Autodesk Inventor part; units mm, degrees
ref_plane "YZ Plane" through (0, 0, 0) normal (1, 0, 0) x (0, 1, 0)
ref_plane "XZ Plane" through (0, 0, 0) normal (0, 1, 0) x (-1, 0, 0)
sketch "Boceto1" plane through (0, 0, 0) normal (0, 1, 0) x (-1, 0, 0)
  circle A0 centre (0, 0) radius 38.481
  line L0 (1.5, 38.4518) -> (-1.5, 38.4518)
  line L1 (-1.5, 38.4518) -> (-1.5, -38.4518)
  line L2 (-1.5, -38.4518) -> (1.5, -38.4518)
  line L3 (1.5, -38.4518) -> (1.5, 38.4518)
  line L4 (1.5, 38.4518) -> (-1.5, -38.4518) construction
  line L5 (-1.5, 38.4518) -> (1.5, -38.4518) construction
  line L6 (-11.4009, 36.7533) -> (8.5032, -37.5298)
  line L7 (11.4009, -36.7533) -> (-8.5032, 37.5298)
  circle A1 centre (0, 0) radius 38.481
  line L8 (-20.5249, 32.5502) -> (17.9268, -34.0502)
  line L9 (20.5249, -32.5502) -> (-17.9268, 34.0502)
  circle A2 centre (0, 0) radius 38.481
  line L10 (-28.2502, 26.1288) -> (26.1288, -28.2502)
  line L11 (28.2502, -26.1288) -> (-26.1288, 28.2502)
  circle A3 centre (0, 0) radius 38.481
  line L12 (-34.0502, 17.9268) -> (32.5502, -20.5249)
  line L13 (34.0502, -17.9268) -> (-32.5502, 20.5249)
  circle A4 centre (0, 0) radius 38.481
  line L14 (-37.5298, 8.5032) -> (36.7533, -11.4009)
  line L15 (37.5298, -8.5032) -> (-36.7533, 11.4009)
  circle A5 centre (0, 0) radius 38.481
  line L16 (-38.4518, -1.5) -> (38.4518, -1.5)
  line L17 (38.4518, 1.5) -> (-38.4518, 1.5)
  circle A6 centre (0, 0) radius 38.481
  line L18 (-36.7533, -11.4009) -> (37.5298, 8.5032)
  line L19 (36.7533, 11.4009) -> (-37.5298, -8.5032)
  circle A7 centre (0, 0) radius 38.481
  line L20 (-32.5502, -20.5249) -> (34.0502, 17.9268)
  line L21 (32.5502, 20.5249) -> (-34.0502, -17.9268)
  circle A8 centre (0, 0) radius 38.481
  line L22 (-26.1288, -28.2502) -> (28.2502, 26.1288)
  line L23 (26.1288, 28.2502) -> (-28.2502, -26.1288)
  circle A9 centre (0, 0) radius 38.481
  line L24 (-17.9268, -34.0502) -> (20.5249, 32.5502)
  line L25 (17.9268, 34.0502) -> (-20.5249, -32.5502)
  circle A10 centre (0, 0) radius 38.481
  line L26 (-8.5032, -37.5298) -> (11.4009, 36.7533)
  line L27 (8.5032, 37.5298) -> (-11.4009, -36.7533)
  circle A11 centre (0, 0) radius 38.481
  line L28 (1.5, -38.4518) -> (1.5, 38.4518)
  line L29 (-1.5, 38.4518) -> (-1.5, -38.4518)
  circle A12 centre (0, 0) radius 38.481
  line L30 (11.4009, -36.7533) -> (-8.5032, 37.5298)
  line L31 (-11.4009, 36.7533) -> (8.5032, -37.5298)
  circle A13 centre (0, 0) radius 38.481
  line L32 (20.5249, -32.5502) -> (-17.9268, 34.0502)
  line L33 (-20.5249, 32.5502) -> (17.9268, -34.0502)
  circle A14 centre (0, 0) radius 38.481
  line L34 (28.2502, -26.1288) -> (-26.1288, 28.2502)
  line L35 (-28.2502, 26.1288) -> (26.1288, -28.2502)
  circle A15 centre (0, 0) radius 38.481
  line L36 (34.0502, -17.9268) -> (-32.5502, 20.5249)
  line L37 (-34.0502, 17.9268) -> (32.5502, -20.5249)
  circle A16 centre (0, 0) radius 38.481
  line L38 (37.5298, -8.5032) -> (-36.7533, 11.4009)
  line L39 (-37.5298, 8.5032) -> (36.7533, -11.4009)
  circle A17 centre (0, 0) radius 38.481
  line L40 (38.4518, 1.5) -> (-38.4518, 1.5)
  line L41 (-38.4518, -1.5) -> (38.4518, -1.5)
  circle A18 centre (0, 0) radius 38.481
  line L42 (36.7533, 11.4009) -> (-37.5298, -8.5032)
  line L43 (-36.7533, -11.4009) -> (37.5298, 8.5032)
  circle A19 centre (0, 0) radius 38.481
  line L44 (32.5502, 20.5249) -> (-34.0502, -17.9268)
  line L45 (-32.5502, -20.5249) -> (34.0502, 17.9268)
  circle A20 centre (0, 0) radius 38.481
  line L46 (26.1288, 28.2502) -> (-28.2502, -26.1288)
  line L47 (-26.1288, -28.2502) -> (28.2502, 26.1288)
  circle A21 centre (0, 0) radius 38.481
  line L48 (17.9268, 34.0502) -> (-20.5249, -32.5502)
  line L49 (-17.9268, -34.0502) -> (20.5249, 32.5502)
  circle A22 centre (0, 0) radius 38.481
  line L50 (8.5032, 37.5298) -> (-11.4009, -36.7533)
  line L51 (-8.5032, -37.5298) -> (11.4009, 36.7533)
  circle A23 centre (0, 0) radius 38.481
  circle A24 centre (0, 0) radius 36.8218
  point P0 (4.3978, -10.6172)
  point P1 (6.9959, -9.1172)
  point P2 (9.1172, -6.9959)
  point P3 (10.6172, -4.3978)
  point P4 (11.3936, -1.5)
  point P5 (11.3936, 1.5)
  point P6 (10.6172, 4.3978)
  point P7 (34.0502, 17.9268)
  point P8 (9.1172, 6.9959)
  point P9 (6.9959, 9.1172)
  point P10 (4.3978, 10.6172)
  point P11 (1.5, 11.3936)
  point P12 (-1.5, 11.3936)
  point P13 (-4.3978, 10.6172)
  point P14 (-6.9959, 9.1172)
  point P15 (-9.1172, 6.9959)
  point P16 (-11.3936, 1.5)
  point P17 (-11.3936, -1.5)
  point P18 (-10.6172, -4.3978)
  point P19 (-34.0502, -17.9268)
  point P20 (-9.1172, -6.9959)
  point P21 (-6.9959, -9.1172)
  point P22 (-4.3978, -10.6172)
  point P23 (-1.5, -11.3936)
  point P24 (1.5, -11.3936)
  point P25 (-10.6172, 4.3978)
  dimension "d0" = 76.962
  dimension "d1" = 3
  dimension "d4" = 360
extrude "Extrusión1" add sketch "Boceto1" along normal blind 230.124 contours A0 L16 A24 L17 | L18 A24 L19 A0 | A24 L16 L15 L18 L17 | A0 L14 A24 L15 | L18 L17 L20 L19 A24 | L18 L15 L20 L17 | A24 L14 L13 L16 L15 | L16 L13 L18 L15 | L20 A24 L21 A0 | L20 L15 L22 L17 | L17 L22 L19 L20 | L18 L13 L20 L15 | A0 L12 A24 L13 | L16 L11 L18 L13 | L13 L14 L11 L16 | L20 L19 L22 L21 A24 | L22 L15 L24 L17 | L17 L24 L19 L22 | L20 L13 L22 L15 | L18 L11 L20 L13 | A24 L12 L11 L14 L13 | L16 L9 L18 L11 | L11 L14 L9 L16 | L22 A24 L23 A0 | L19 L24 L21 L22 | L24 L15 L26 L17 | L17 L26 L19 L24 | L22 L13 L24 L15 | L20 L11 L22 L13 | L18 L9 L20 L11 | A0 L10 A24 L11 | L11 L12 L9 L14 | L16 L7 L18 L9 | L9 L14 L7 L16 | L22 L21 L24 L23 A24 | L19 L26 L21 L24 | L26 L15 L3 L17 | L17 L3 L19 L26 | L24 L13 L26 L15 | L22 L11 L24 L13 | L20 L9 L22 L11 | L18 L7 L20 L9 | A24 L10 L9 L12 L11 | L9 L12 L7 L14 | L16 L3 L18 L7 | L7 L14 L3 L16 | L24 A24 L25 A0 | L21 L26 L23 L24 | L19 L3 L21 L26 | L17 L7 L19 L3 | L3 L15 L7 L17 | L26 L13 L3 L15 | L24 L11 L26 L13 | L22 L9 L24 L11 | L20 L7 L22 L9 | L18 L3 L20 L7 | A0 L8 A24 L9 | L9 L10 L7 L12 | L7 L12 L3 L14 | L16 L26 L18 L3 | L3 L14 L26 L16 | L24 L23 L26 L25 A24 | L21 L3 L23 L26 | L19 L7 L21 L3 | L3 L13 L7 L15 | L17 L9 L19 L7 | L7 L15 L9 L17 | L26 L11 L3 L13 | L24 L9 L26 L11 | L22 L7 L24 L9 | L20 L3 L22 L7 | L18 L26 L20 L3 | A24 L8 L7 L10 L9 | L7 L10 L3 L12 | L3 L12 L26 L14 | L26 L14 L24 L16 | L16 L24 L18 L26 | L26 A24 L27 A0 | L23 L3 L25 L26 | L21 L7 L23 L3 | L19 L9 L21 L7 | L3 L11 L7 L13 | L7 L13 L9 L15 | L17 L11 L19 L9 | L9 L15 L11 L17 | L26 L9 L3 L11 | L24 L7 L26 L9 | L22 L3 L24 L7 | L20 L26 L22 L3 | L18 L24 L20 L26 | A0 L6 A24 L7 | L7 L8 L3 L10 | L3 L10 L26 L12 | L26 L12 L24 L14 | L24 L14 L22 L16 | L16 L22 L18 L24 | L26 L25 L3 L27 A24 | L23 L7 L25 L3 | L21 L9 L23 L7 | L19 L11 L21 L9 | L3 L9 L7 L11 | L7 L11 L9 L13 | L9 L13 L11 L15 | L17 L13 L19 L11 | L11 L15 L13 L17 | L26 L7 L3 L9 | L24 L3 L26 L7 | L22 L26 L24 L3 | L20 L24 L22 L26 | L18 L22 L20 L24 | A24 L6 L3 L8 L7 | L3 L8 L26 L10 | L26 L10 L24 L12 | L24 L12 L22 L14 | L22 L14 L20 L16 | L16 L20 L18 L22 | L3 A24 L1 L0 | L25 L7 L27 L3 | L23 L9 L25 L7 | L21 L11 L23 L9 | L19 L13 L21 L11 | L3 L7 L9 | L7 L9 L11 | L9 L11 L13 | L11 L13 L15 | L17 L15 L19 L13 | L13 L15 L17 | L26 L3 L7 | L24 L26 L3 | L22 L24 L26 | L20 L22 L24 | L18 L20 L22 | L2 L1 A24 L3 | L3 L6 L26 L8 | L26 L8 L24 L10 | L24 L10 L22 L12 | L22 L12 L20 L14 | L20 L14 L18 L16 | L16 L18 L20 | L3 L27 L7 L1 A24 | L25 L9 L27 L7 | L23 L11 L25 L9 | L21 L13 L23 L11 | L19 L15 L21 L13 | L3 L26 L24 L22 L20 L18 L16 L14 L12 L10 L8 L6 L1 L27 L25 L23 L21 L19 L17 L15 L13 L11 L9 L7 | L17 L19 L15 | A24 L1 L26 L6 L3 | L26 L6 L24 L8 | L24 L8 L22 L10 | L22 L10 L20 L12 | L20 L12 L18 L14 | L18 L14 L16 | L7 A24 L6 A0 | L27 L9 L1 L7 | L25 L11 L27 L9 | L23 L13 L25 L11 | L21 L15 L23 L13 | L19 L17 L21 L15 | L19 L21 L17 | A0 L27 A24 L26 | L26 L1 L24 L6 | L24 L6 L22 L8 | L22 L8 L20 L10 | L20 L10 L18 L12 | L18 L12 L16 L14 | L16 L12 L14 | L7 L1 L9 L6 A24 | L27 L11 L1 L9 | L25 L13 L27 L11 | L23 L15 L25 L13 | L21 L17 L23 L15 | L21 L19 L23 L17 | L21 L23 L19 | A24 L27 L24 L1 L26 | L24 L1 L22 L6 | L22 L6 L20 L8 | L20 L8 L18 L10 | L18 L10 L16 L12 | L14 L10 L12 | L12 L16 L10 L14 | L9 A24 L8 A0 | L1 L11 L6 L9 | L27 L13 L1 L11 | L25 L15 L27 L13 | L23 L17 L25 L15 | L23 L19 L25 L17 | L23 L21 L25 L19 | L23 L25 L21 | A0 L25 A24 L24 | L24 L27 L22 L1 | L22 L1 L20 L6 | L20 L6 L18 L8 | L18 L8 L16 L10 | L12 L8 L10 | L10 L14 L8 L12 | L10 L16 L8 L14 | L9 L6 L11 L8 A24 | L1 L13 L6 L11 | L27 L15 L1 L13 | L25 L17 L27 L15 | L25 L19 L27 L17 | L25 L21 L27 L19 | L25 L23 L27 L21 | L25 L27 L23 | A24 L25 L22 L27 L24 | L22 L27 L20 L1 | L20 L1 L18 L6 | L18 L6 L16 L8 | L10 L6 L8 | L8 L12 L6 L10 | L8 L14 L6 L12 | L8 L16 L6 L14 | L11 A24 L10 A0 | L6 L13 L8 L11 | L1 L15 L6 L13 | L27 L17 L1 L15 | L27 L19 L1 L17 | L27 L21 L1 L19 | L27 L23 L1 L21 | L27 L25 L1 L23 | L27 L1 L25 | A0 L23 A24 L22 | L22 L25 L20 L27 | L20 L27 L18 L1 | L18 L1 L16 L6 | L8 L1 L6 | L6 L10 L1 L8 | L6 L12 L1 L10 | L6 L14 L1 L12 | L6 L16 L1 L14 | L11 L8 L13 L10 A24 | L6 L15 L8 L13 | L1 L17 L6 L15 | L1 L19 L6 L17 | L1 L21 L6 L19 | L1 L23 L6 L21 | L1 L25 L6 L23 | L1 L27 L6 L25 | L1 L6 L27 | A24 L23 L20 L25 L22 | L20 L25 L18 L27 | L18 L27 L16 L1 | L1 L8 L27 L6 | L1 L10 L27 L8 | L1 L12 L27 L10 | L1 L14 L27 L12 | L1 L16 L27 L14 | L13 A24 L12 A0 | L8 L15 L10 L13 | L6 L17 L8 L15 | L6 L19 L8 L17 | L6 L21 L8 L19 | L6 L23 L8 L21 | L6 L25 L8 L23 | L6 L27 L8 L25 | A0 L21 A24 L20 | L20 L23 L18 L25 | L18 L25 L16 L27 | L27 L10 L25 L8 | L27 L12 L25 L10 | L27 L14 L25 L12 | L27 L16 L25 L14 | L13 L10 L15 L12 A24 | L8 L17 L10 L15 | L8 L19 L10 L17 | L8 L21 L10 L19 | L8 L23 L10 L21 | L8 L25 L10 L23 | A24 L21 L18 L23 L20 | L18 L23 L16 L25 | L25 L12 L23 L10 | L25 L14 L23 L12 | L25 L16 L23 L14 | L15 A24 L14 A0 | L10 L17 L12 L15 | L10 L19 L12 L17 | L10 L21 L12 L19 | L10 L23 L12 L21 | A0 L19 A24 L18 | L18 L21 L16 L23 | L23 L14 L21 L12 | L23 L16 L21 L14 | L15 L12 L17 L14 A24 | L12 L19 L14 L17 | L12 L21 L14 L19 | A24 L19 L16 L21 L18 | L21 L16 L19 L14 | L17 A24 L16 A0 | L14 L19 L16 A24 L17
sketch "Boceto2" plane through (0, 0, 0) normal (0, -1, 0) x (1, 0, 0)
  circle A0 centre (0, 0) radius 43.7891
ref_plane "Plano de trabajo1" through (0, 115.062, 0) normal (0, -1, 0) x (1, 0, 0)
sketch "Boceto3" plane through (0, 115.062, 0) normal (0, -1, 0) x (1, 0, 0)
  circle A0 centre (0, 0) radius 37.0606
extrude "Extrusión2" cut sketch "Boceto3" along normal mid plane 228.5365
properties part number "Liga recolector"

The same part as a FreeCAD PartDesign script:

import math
import FreeCAD as App
import Part
import Sketcher
from FreeCAD import Vector
Q = App.Units.Quantity

doc = App.newDocument("Part")
body = doc.addObject("PartDesign::Body", "Body")

sketch1 = doc.addObject("Sketcher::SketchObject", "Sketch")
body.addObject(sketch1)
sketch1.AttachmentSupport = (doc.XZ_Plane, [""])
sketch1.MapMode = "FlatFace"
sketch1.addGeometry([
    Part.ArcOfCircle(Part.Circle(Vector(0, 0, 0), Vector(0, 0, 1), 38.481), math.radians(177.766031), math.radians(182.233969)),
    Part.LineSegment(Vector(-38.4518, 1.5, 0), Vector(-11.393506, 1.5, 0)),
    Part.LineSegment(Vector(-11.393506, 1.5, 0), Vector(-37.5298, 8.5032, 0)),
    Part.ArcOfCircle(Part.Circle(Vector(0, 0, 0), Vector(0, 0, 1), 38.481), math.radians(162.766072), math.radians(167.233919)),
    Part.LineSegment(Vector(-36.7533, 11.4009, 0), Vector(-10.617136, 4.397735, 0)),
    Part.LineSegment(Vector(-10.617136, 4.397735, 0), Vector(-34.0502, 17.9268, 0)),
    Part.ArcOfCircle(Part.Circle(Vector(0, 0, 0), Vector(0, 0, 1), 38.481), math.radians(147.766051), math.radians(152.234025)),
    Part.LineSegment(Vector(-32.5502, 20.5249, 0), Vector(-9.11737, 6.99597, 0)),
    Part.LineSegment(Vector(-9.11737, 6.99597, 0), Vector(-28.2502, 26.1288, 0)),
    Part.ArcOfCircle(Part.Circle(Vector(0, 0, 0), Vector(0, 0, 1), 38.481), math.radians(132.765945), math.radians(137.234055)),
    Part.LineSegment(Vector(-26.1288, 28.2502, 0), Vector(-6.99597, 9.11737, 0)),
    Part.LineSegment(Vector(-6.99597, 9.11737, 0), Vector(-20.5249, 32.5502, 0)),
    Part.ArcOfCircle(Part.Circle(Vector(0, 0, 0), Vector(0, 0, 1), 38.481), math.radians(117.765975), math.radians(122.233949)),
    Part.LineSegment(Vector(-17.9268, 34.0502, 0), Vector(-4.397735, 10.617136, 0)),
    Part.LineSegment(Vector(-4.397735, 10.617136, 0), Vector(-11.4009, 36.7533, 0)),
    Part.ArcOfCircle(Part.Circle(Vector(0, 0, 0), Vector(0, 0, 1), 38.481), math.radians(102.766081), math.radians(107.233928)),
    Part.LineSegment(Vector(-8.5032, 37.5298, 0), Vector(-1.5, 11.393506, 0)),
    Part.LineSegment(Vector(-1.5, 11.393506, 0), Vector(-1.5, 38.4518, 0)),
    Part.LineSegment(Vector(-1.5, 38.4518, 0), Vector(1.5, 38.4518, 0)),
    Part.LineSegment(Vector(1.5, 38.4518, 0), Vector(1.5, 11.393506, 0)),
    Part.LineSegment(Vector(1.5, 11.393506, 0), Vector(8.5032, 37.5298, 0)),
    Part.ArcOfCircle(Part.Circle(Vector(0, 0, 0), Vector(0, 0, 1), 38.481), math.radians(72.766072), math.radians(77.233919)),
    Part.LineSegment(Vector(11.4009, 36.7533, 0), Vector(4.397735, 10.617136, 0)),
    Part.LineSegment(Vector(4.397735, 10.617136, 0), Vector(17.9268, 34.0502, 0)),
    Part.ArcOfCircle(Part.Circle(Vector(0, 0, 0), Vector(0, 0, 1), 38.481), math.radians(57.766051), math.radians(62.234025)),
    Part.LineSegment(Vector(20.5249, 32.5502, 0), Vector(6.99597, 9.11737, 0)),
    Part.LineSegment(Vector(6.99597, 9.11737, 0), Vector(26.1288, 28.2502, 0)),
    Part.ArcOfCircle(Part.Circle(Vector(0, 0, 0), Vector(0, 0, 1), 38.481), math.radians(42.765945), math.radians(47.234055)),
    Part.LineSegment(Vector(28.2502, 26.1288, 0), Vector(9.11737, 6.99597, 0)),
    Part.LineSegment(Vector(9.11737, 6.99597, 0), Vector(32.5502, 20.5249, 0)),
    Part.ArcOfCircle(Part.Circle(Vector(0, 0, 0), Vector(0, 0, 1), 38.481), math.radians(27.765975), math.radians(32.233949)),
    Part.LineSegment(Vector(34.0502, 17.9268, 0), Vector(10.617136, 4.397735, 0)),
    Part.LineSegment(Vector(10.617136, 4.397735, 0), Vector(36.7533, 11.4009, 0)),
    Part.ArcOfCircle(Part.Circle(Vector(0, 0, 0), Vector(0, 0, 1), 38.481), math.radians(12.766081), math.radians(17.233928)),
    Part.LineSegment(Vector(37.5298, 8.5032, 0), Vector(11.393506, 1.5, 0)),
    Part.LineSegment(Vector(11.393506, 1.5, 0), Vector(38.4518, 1.5, 0)),
    Part.ArcOfCircle(Part.Circle(Vector(0, 0, 0), Vector(0, 0, 1), 38.481), math.radians(-2.233969), math.radians(2.233969)),
    Part.LineSegment(Vector(38.4518, -1.5, 0), Vector(11.393506, -1.5, 0)),
    Part.LineSegment(Vector(11.393506, -1.5, 0), Vector(37.5298, -8.5032, 0)),
    Part.ArcOfCircle(Part.Circle(Vector(0, 0, 0), Vector(0, 0, 1), 38.481), math.radians(-17.233928), math.radians(-12.766081)),
    Part.LineSegment(Vector(36.7533, -11.4009, 0), Vector(10.617136, -4.397735, 0)),
    Part.LineSegment(Vector(10.617136, -4.397735, 0), Vector(34.0502, -17.9268, 0)),
    Part.ArcOfCircle(Part.Circle(Vector(0, 0, 0), Vector(0, 0, 1), 38.481), math.radians(-32.233949), math.radians(-27.765975)),
    Part.LineSegment(Vector(32.5502, -20.5249, 0), Vector(9.11737, -6.99597, 0)),
    Part.LineSegment(Vector(9.11737, -6.99597, 0), Vector(28.2502, -26.1288, 0)),
    Part.ArcOfCircle(Part.Circle(Vector(0, 0, 0), Vector(0, 0, 1), 38.481), math.radians(-47.234055), math.radians(-42.765945)),
    Part.LineSegment(Vector(26.1288, -28.2502, 0), Vector(6.99597, -9.11737, 0)),
    Part.LineSegment(Vector(6.99597, -9.11737, 0), Vector(20.5249, -32.5502, 0)),
    Part.ArcOfCircle(Part.Circle(Vector(0, 0, 0), Vector(0, 0, 1), 38.481), math.radians(-62.234025), math.radians(-57.766051)),
    Part.LineSegment(Vector(17.9268, -34.0502, 0), Vector(4.397735, -10.617136, 0)),
    Part.LineSegment(Vector(4.397735, -10.617136, 0), Vector(11.4009, -36.7533, 0)),
    Part.ArcOfCircle(Part.Circle(Vector(0, 0, 0), Vector(0, 0, 1), 38.481), math.radians(-77.233919), math.radians(-72.766072)),
    Part.LineSegment(Vector(8.5032, -37.5298, 0), Vector(1.5, -11.393506, 0)),
    Part.LineSegment(Vector(1.5, -11.393506, 0), Vector(1.5, -38.4518, 0)),
    Part.LineSegment(Vector(1.5, -38.4518, 0), Vector(-1.5, -38.4518, 0)),
    Part.LineSegment(Vector(-1.5, -38.4518, 0), Vector(-1.5, -11.393506, 0)),
    Part.LineSegment(Vector(-1.5, -11.393506, 0), Vector(-8.5032, -37.5298, 0)),
    Part.ArcOfCircle(Part.Circle(Vector(0, 0, 0), Vector(0, 0, 1), 38.481), math.radians(-107.233928), math.radians(-102.766081)),
    Part.LineSegment(Vector(-11.4009, -36.7533, 0), Vector(-4.397735, -10.617136, 0)),
    Part.LineSegment(Vector(-4.397735, -10.617136, 0), Vector(-17.9268, -34.0502, 0)),
    Part.ArcOfCircle(Part.Circle(Vector(0, 0, 0), Vector(0, 0, 1), 38.481), math.radians(-122.233949), math.radians(-117.765975)),
    Part.LineSegment(Vector(-20.5249, -32.5502, 0), Vector(-6.99597, -9.11737, 0)),
    Part.LineSegment(Vector(-6.99597, -9.11737, 0), Vector(-26.1288, -28.2502, 0)),
    Part.ArcOfCircle(Part.Circle(Vector(0, 0, 0), Vector(0, 0, 1), 38.481), math.radians(-137.234055), math.radians(-132.765945)),
    Part.LineSegment(Vector(-28.2502, -26.1288, 0), Vector(-9.11737, -6.99597, 0)),
    Part.LineSegment(Vector(-9.11737, -6.99597, 0), Vector(-32.5502, -20.5249, 0)),
    Part.ArcOfCircle(Part.Circle(Vector(0, 0, 0), Vector(0, 0, 1), 38.481), math.radians(-152.234025), math.radians(-147.766051)),
    Part.LineSegment(Vector(-34.0502, -17.9268, 0), Vector(-10.617136, -4.397735, 0)),
    Part.LineSegment(Vector(-10.617136, -4.397735, 0), Vector(-36.7533, -11.4009, 0)),
    Part.ArcOfCircle(Part.Circle(Vector(0, 0, 0), Vector(0, 0, 1), 38.481), math.radians(-167.233919), math.radians(-162.766072)),
    Part.LineSegment(Vector(-37.5298, -8.5032, 0), Vector(-11.393506, -1.5, 0)),
    Part.LineSegment(Vector(-11.393506, -1.5, 0), Vector(-38.4518, -1.5, 0)),
], False)
sketch1.addConstraint([
    Sketcher.Constraint("Coincident", 0, 1, 1, 1),
    Sketcher.Constraint("Coincident", 1, 2, 2, 1),
    Sketcher.Constraint("Coincident", 2, 2, 3, 2),
    Sketcher.Constraint("Coincident", 3, 1, 4, 1),
    Sketcher.Constraint("Coincident", 4, 2, 5, 1),
    Sketcher.Constraint("Coincident", 5, 2, 6, 2),
    Sketcher.Constraint("Coincident", 6, 1, 7, 1),
    Sketcher.Constraint("Coincident", 7, 2, 8, 1),
    Sketcher.Constraint("Coincident", 8, 2, 9, 2),
    Sketcher.Constraint("Coincident", 9, 1, 10, 1),
    Sketcher.Constraint("Coincident", 10, 2, 11, 1),
    Sketcher.Constraint("Coincident", 11, 2, 12, 2),
    Sketcher.Constraint("Coincident", 12, 1, 13, 1),
    Sketcher.Constraint("Coincident", 13, 2, 14, 1),
    Sketcher.Constraint("Coincident", 14, 2, 15, 2),
    Sketcher.Constraint("Coincident", 15, 1, 16, 1),
    Sketcher.Constraint("Coincident", 16, 2, 17, 1),
    Sketcher.Constraint("Coincident", 17, 2, 18, 1),
    Sketcher.Constraint("Coincident", 18, 2, 19, 1),
    Sketcher.Constraint("Coincident", 19, 2, 20, 1),
    Sketcher.Constraint("Coincident", 20, 2, 21, 2),
    Sketcher.Constraint("Coincident", 21, 1, 22, 1),
    Sketcher.Constraint("Coincident", 22, 2, 23, 1),
    Sketcher.Constraint("Coincident", 23, 2, 24, 2),
    Sketcher.Constraint("Coincident", 24, 1, 25, 1),
    Sketcher.Constraint("Coincident", 25, 2, 26, 1),
    Sketcher.Constraint("Coincident", 26, 2, 27, 2),
    Sketcher.Constraint("Coincident", 27, 1, 28, 1),
    Sketcher.Constraint("Coincident", 28, 2, 29, 1),
    Sketcher.Constraint("Coincident", 29, 2, 30, 2),
    Sketcher.Constraint("Coincident", 30, 1, 31, 1),
    Sketcher.Constraint("Coincident", 31, 2, 32, 1),
    Sketcher.Constraint("Coincident", 32, 2, 33, 2),
    Sketcher.Constraint("Coincident", 33, 1, 34, 1),
    Sketcher.Constraint("Coincident", 34, 2, 35, 1),
    Sketcher.Constraint("Coincident", 35, 2, 36, 2),
    Sketcher.Constraint("Coincident", 36, 1, 37, 1),
    Sketcher.Constraint("Coincident", 37, 2, 38, 1),
    Sketcher.Constraint("Coincident", 38, 2, 39, 2),
    Sketcher.Constraint("Coincident", 39, 1, 40, 1),
    Sketcher.Constraint("Coincident", 40, 2, 41, 1),
    Sketcher.Constraint("Coincident", 41, 2, 42, 2),
    Sketcher.Constraint("Coincident", 42, 1, 43, 1),
    Sketcher.Constraint("Coincident", 43, 2, 44, 1),
    Sketcher.Constraint("Coincident", 44, 2, 45, 2),
    Sketcher.Constraint("Coincident", 45, 1, 46, 1),
    Sketcher.Constraint("Coincident", 46, 2, 47, 1),
    Sketcher.Constraint("Coincident", 47, 2, 48, 2),
    Sketcher.Constraint("Coincident", 48, 1, 49, 1),
    Sketcher.Constraint("Coincident", 49, 2, 50, 1),
    Sketcher.Constraint("Coincident", 50, 2, 51, 2),
    Sketcher.Constraint("Coincident", 51, 1, 52, 1),
    Sketcher.Constraint("Coincident", 52, 2, 53, 1),
    Sketcher.Constraint("Coincident", 53, 2, 54, 1),
    Sketcher.Constraint("Coincident", 54, 2, 55, 1),
    Sketcher.Constraint("Coincident", 55, 2, 56, 1),
    Sketcher.Constraint("Coincident", 56, 2, 57, 2),
    Sketcher.Constraint("Coincident", 57, 1, 58, 1),
    Sketcher.Constraint("Coincident", 58, 2, 59, 1),
    Sketcher.Constraint("Coincident", 59, 2, 60, 2),
    Sketcher.Constraint("Coincident", 60, 1, 61, 1),
    Sketcher.Constraint("Coincident", 61, 2, 62, 1),
    Sketcher.Constraint("Coincident", 62, 2, 63, 2),
    Sketcher.Constraint("Coincident", 63, 1, 64, 1),
    Sketcher.Constraint("Coincident", 64, 2, 65, 1),
    Sketcher.Constraint("Coincident", 65, 2, 66, 2),
    Sketcher.Constraint("Coincident", 66, 1, 67, 1),
    Sketcher.Constraint("Coincident", 67, 2, 68, 1),
    Sketcher.Constraint("Coincident", 68, 2, 69, 2),
    Sketcher.Constraint("Coincident", 69, 1, 70, 1),
    Sketcher.Constraint("Coincident", 70, 2, 71, 1),
    Sketcher.Constraint("Coincident", 71, 2, 0, 2),
    Sketcher.Constraint("Horizontal", 1),
    Sketcher.Constraint("Vertical", 17),
    Sketcher.Constraint("Horizontal", 18),
    Sketcher.Constraint("Vertical", 19),
    Sketcher.Constraint("Horizontal", 35),
    Sketcher.Constraint("Horizontal", 37),
    Sketcher.Constraint("Vertical", 53),
    Sketcher.Constraint("Horizontal", 54),
    Sketcher.Constraint("Vertical", 55),
    Sketcher.Constraint("Horizontal", 71),
    Sketcher.Constraint("Coincident", 0, 3, -1, 1),
    Sketcher.Constraint("Coincident", 3, 3, -1, 1),
    Sketcher.Constraint("Coincident", 6, 3, -1, 1),
    Sketcher.Constraint("Coincident", 9, 3, -1, 1),
    Sketcher.Constraint("Coincident", 12, 3, -1, 1),
    Sketcher.Constraint("Coincident", 15, 3, -1, 1),
    Sketcher.Constraint("Coincident", 21, 3, -1, 1),
    Sketcher.Constraint("Coincident", 24, 3, -1, 1),
    Sketcher.Constraint("Coincident", 27, 3, -1, 1),
    Sketcher.Constraint("Coincident", 30, 3, -1, 1),
    Sketcher.Constraint("Coincident", 33, 3, -1, 1),
    Sketcher.Constraint("Coincident", 36, 3, -1, 1),
    Sketcher.Constraint("Coincident", 39, 3, -1, 1),
    Sketcher.Constraint("Coincident", 42, 3, -1, 1),
    Sketcher.Constraint("Coincident", 45, 3, -1, 1),
    Sketcher.Constraint("Coincident", 48, 3, -1, 1),
    Sketcher.Constraint("Coincident", 51, 3, -1, 1),
    Sketcher.Constraint("Coincident", 57, 3, -1, 1),
    Sketcher.Constraint("Coincident", 60, 3, -1, 1),
    Sketcher.Constraint("Coincident", 63, 3, -1, 1),
    Sketcher.Constraint("Coincident", 66, 3, -1, 1),
    Sketcher.Constraint("Coincident", 69, 3, -1, 1),
    Sketcher.Constraint("Equal", 0, 3),
    Sketcher.Constraint("Equal", 3, 6),
    Sketcher.Constraint("Equal", 6, 9),
    Sketcher.Constraint("Equal", 9, 12),
    Sketcher.Constraint("Equal", 12, 15),
    Sketcher.Constraint("Equal", 15, 21),
    Sketcher.Constraint("Equal", 21, 24),
    Sketcher.Constraint("Equal", 24, 27),
    Sketcher.Constraint("Equal", 27, 30),
    Sketcher.Constraint("Equal", 30, 33),
    Sketcher.Constraint("Equal", 33, 36),
    Sketcher.Constraint("Equal", 36, 39),
    Sketcher.Constraint("Equal", 39, 42),
    Sketcher.Constraint("Equal", 42, 45),
    Sketcher.Constraint("Equal", 45, 48),
    Sketcher.Constraint("Equal", 48, 51),
    Sketcher.Constraint("Equal", 51, 57),
    Sketcher.Constraint("Equal", 57, 60),
    Sketcher.Constraint("Equal", 60, 63),
    Sketcher.Constraint("Equal", 63, 66),
    Sketcher.Constraint("Equal", 66, 69),
    Sketcher.Constraint("Symmetric", 1, 2, 37, 2, -1, 1),
    Sketcher.Constraint("Symmetric", 4, 2, 40, 2, -1, 1),
    Sketcher.Constraint("Symmetric", 7, 2, 43, 2, -1, 1),
    Sketcher.Constraint("Symmetric", 10, 2, 46, 2, -1, 1),
    Sketcher.Constraint("Symmetric", 13, 2, 49, 2, -1, 1),
    Sketcher.Constraint("Symmetric", 16, 2, 52, 2, -1, 1),
    Sketcher.Constraint("Symmetric", 18, 2, 54, 2, -1, 1),
    Sketcher.Constraint("Symmetric", 22, 2, 58, 2, -1, 1),
    Sketcher.Constraint("Symmetric", 25, 2, 61, 2, -1, 1),
    Sketcher.Constraint("Symmetric", 28, 2, 64, 2, -1, 1),
    Sketcher.Constraint("Symmetric", 31, 2, 67, 2, -1, 1),
    Sketcher.Constraint("Symmetric", 34, 2, 70, 2, -1, 1),
    Sketcher.Constraint("Symmetric", 16, 2, 19, 2, -2),
    Sketcher.Constraint("Symmetric", 13, 2, 22, 2, -2),
    Sketcher.Constraint("Symmetric", 10, 2, 25, 2, -2),
    Sketcher.Constraint("Symmetric", 7, 2, 28, 2, -2),
    Sketcher.Constraint("Symmetric", 4, 2, 31, 2, -2),
    Sketcher.Constraint("Symmetric", 1, 2, 34, 2, -2),
    Sketcher.Constraint("Parallel", 2, 4),
    Sketcher.Constraint("Parallel", 5, 7),
    Sketcher.Constraint("Parallel", 8, 10),
    Sketcher.Constraint("Parallel", 11, 13),
    Sketcher.Constraint("Parallel", 14, 16),
    Sketcher.Constraint("Perpendicular", 4, 20),
    Sketcher.Constraint("Parallel", 20, 22),
    Sketcher.Constraint("Perpendicular", 7, 23),
    Sketcher.Constraint("Parallel", 23, 25),
    Sketcher.Constraint("Perpendicular", 10, 26),
    Sketcher.Constraint("Parallel", 26, 28),
    Sketcher.Constraint("Perpendicular", 13, 29),
    Sketcher.Constraint("Parallel", 29, 31),
    Sketcher.Constraint("Perpendicular", 16, 32),
    Sketcher.Constraint("Parallel", 32, 34),
    Sketcher.Constraint("Perpendicular", 22, 38),
    Sketcher.Constraint("Parallel", 38, 40),
    Sketcher.Constraint("Perpendicular", 25, 41),
    Sketcher.Constraint("Parallel", 41, 43),
    Sketcher.Constraint("Perpendicular", 28, 44),
    Sketcher.Constraint("Parallel", 44, 46),
    Sketcher.Constraint("Perpendicular", 31, 47),
    Sketcher.Constraint("Parallel", 47, 49),
    Sketcher.Constraint("Perpendicular", 34, 50),
    Sketcher.Constraint("Parallel", 50, 52),
    Sketcher.Constraint("Perpendicular", 40, 56),
    Sketcher.Constraint("Parallel", 56, 58),
    Sketcher.Constraint("Perpendicular", 43, 59),
    Sketcher.Constraint("Parallel", 59, 61),
    Sketcher.Constraint("Perpendicular", 46, 62),
    Sketcher.Constraint("Parallel", 62, 64),
    Sketcher.Constraint("Perpendicular", 49, 65),
    Sketcher.Constraint("Parallel", 65, 67),
    Sketcher.Constraint("Perpendicular", 52, 68),
    Sketcher.Constraint("Parallel", 68, 70),
    Sketcher.Constraint("Horizontal", 15, 1, 20, 2),
    Sketcher.Constraint("Horizontal", 12, 1, 23, 2),
    Sketcher.Constraint("Horizontal", 9, 1, 26, 2),
    Sketcher.Constraint("Horizontal", 52, 2, 55, 2),
    Sketcher.Constraint("Equal", 71, 17),
    Sketcher.Constraint("Equal", 2, 4),
    Sketcher.Constraint("Equal", 4, 5),
    Sketcher.Constraint("Equal", 7, 8),
    Sketcher.Constraint("Equal", 8, 10),
    Sketcher.Constraint("Equal", 10, 11),
    Sketcher.Constraint("Equal", 5, 13),
    Sketcher.Constraint("Equal", 13, 14),
    Sketcher.Constraint("Equal", 14, 16),
    Sketcher.Constraint("Radius", 0, Q("1.515 in")),
    Sketcher.Constraint("DistanceX", 18, 1, 18, 2, Q("0.1181 in")),
    Sketcher.Constraint("Angle", 2, Q("165 deg")),
    Sketcher.Constraint("Angle", 5, Q("150 deg")),
    Sketcher.Constraint("DistanceX", 4, 2, -1, 1, Q("0.418 in")),
    Sketcher.Constraint("DistanceX", 1, 1, 1, 2, Q("27.0583 mm")),
    Sketcher.Constraint("DistanceY", -1, 1, 8, 2, Q("1.0287 in")),
])
pad1 = doc.addObject("PartDesign::Pad", "Pad")
body.addObject(pad1)
pad1.Profile = sketch1
pad1.Length = Q("9.06 in")
pad1.Reversed = True

sketch2 = doc.addObject("Sketcher::SketchObject", "Sketch001")
body.addObject(sketch2)
sketch2.AttachmentSupport = (doc.XZ_Plane, [""])
sketch2.MapMode = "FlatFace"
sketch2.AttachmentOffset = App.Placement(Vector(0, 0, -4.53 * 25.4), App.Rotation())
sketch2.addGeometry(Part.Circle(Vector(0, 0, 0), Vector(0, 0, 1), 37.0606), False)
sketch2.addConstraint([
    Sketcher.Constraint("Coincident", 0, 3, -1, 1),
    Sketcher.Constraint("Diameter", 0, Q("74.1212 mm")),
])
pocket1 = doc.addObject("PartDesign::Pocket", "Pocket")
body.addObject(pocket1)
pocket1.Profile = sketch2
pocket1.Length = Q("8.9975 in")
pocket1.Midplane = True

doc.recompute()
